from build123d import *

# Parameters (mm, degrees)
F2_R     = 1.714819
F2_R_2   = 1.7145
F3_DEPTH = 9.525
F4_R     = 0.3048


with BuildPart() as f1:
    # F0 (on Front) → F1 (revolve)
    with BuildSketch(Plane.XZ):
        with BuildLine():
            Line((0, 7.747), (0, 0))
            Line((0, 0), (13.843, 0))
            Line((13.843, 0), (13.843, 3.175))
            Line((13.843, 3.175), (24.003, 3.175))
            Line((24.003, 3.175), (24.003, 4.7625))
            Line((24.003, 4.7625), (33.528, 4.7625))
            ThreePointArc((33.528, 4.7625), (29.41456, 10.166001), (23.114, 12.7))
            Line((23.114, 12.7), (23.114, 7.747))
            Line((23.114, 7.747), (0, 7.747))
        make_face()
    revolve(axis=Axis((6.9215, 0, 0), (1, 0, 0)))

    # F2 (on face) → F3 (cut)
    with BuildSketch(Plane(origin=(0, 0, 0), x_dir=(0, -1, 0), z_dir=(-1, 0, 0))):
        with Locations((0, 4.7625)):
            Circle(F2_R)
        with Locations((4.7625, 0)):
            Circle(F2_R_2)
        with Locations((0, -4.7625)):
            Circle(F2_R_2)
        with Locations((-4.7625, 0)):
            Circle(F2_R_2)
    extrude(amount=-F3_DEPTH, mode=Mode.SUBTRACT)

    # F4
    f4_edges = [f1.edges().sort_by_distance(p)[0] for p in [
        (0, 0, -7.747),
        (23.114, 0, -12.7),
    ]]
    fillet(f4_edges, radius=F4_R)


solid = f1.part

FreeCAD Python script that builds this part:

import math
import FreeCAD as App
import Part
import Sketcher
Q = App.Units.Quantity


def edges_at(feature, points):
    """Names of the edges that pass closest to the given points."""
    edges = feature.Shape.Edges
    near = lambda p: min(range(len(edges)), key=lambda i: edges[i].distToShape(Part.Vertex(*p))[0])
    return sorted({f"Edge{near(p) + 1}" for p in points})

doc = App.newDocument("Part")
body = doc.addObject("PartDesign::Body", "Body")

# Sketch on XZ plane
sketch1 = doc.addObject("Sketcher::SketchObject", "Sketch")
body.addObject(sketch1)
sketch1.AttachmentSupport = (doc.XZ_Plane, [""])
sketch1.MapMode = "FlatFace"
sketch1.addGeometry([
    Part.LineSegment(App.Vector(0, 7.7, 0), App.Vector(0, 0, 0)),  # 0
    Part.LineSegment(App.Vector(0, 0, 0), App.Vector(13.8, 0, 0)),  # 1
    Part.LineSegment(App.Vector(13.8, 0, 0), App.Vector(13.8, 3.2, 0)),  # 2
    Part.LineSegment(App.Vector(13.8, 3.2, 0), App.Vector(24, 3.2, 0)),  # 3
    Part.LineSegment(App.Vector(24, 3.2, 0), App.Vector(24, 4.8, 0)),  # 4
    Part.LineSegment(App.Vector(24, 4.8, 0), App.Vector(33.5, 4.8, 0)),  # 5
    Part.ArcOfCircle(Part.Circle(App.Vector(21.7, 0, 0), App.Vector(0, 0, 1), 12.8), math.radians(22), math.radians(83)),  # 6
    Part.LineSegment(App.Vector(23.1, 12.7, 0), App.Vector(23.1, 7.7, 0)),  # 7
    Part.LineSegment(App.Vector(23.1, 7.7, 0), App.Vector(0, 7.7, 0)),  # 8
], False)
sketch1.addConstraint([
    Sketcher.Constraint("Coincident", 0, 2, 1, 1),
    Sketcher.Constraint("Coincident", 1, 2, 2, 1),
    Sketcher.Constraint("Coincident", 2, 2, 3, 1),
    Sketcher.Constraint("Coincident", 3, 2, 4, 1),
    Sketcher.Constraint("Coincident", 4, 2, 5, 1),
    Sketcher.Constraint("Coincident", 5, 2, 6, 1),
    Sketcher.Constraint("Coincident", 6, 2, 7, 1),
    Sketcher.Constraint("Coincident", 7, 2, 8, 1),
    Sketcher.Constraint("Coincident", 8, 2, 0, 1),
    Sketcher.Constraint("Vertical", 0),
    Sketcher.Constraint("Horizontal", 1),
    Sketcher.Constraint("Vertical", 2),
    Sketcher.Constraint("Horizontal", 3),
    Sketcher.Constraint("Vertical", 4),
    Sketcher.Constraint("Horizontal", 5),
    Sketcher.Constraint("Vertical", 7),
    Sketcher.Constraint("Horizontal", 8),
    Sketcher.Constraint("Coincident", 0, 2, -1, 1),
    Sketcher.Constraint("PointOnObject", 6, 3, -1),
    Sketcher.Constraint("DistanceX", 3, 1, 3, 2, Q("0.4 in")),
    Sketcher.Constraint("DistanceX", 8, 2, 8, 1, Q("0.91 in")),
    Sketcher.Constraint("DistanceY", -1, 1, 6, 2, Q("0.5 in")),
    Sketcher.Constraint("DistanceX", 1, 1, 1, 2, Q("0.545 in")),
    Sketcher.Constraint("DistanceX", 5, 1, 5, 2, Q("0.375 in")),
    Sketcher.Constraint("DistanceY", 0, 2, 0, 1, Q("0.305 in")),
    Sketcher.Constraint("DistanceY", 2, 1, 2, 2, Q("0.125 in")),
    Sketcher.Constraint("DistanceY", 4, 1, 4, 2, Q("0.0625 in")),
])
revolution = doc.addObject("PartDesign::Revolution", "Revolution")
body.addObject(revolution)
revolution.Profile = sketch1
revolution.ReferenceAxis = (sketch1, ["H_Axis"])
revolution.Angle = 360

# Sketch on YZ plane
sketch2 = doc.addObject("Sketcher::SketchObject", "Sketch001")
body.addObject(sketch2)
sketch2.AttachmentSupport = (doc.YZ_Plane, [""])
sketch2.MapMode = "FlatFace"
sketch2.addGeometry([
    Part.Circle(App.Vector(0, 4.8, 0), App.Vector(0, 0, 1), 1.7),
    Part.Circle(App.Vector(-4.8, 0, 0), App.Vector(0, 0, 1), 1.7),
    Part.Circle(App.Vector(0, -4.8, 0), App.Vector(0, 0, 1), 1.7),
    Part.Circle(App.Vector(4.8, 0, 0), App.Vector(0, 0, 1), 1.7),
], False)
sketch2.addConstraint([
    Sketcher.Constraint("Equal", 1, 2),
    Sketcher.Constraint("Equal", 2, 3),
    Sketcher.Constraint("Symmetric", 0, 3, 2, 3, -1, 1),
    Sketcher.Constraint("Symmetric", 1, 3, 3, 3, -1, 1),
    Sketcher.Constraint("PointOnObject", 0, 3, -2),
    Sketcher.Constraint("PointOnObject", 1, 3, -1),
    Sketcher.Constraint("Diameter", 1, Q("0.135 in")),
    Sketcher.Constraint("Diameter", 0, 3.429638),
    Sketcher.Constraint("DistanceY", -1, 1, 0, 3, Q("0.1875 in")),
    Sketcher.Constraint("DistanceX", 1, 3, -1, 1, Q("0.1875 in")),
])
pocket1 = doc.addObject("PartDesign::Pocket", "Pocket")
body.addObject(pocket1)
pocket1.Profile = sketch2
pocket1.Length = Q("0.375 in")
pocket1.Reversed = True
doc.recompute()

fillet = doc.addObject("PartDesign::Fillet", "Fillet")
body.addObject(fillet)
fillet.Base = (pocket1, edges_at(pocket1, [(0, 0, -7.747), (23.114, 0, -12.7)]))
fillet.Radius = Q("0.012 in")

doc.recompute()
